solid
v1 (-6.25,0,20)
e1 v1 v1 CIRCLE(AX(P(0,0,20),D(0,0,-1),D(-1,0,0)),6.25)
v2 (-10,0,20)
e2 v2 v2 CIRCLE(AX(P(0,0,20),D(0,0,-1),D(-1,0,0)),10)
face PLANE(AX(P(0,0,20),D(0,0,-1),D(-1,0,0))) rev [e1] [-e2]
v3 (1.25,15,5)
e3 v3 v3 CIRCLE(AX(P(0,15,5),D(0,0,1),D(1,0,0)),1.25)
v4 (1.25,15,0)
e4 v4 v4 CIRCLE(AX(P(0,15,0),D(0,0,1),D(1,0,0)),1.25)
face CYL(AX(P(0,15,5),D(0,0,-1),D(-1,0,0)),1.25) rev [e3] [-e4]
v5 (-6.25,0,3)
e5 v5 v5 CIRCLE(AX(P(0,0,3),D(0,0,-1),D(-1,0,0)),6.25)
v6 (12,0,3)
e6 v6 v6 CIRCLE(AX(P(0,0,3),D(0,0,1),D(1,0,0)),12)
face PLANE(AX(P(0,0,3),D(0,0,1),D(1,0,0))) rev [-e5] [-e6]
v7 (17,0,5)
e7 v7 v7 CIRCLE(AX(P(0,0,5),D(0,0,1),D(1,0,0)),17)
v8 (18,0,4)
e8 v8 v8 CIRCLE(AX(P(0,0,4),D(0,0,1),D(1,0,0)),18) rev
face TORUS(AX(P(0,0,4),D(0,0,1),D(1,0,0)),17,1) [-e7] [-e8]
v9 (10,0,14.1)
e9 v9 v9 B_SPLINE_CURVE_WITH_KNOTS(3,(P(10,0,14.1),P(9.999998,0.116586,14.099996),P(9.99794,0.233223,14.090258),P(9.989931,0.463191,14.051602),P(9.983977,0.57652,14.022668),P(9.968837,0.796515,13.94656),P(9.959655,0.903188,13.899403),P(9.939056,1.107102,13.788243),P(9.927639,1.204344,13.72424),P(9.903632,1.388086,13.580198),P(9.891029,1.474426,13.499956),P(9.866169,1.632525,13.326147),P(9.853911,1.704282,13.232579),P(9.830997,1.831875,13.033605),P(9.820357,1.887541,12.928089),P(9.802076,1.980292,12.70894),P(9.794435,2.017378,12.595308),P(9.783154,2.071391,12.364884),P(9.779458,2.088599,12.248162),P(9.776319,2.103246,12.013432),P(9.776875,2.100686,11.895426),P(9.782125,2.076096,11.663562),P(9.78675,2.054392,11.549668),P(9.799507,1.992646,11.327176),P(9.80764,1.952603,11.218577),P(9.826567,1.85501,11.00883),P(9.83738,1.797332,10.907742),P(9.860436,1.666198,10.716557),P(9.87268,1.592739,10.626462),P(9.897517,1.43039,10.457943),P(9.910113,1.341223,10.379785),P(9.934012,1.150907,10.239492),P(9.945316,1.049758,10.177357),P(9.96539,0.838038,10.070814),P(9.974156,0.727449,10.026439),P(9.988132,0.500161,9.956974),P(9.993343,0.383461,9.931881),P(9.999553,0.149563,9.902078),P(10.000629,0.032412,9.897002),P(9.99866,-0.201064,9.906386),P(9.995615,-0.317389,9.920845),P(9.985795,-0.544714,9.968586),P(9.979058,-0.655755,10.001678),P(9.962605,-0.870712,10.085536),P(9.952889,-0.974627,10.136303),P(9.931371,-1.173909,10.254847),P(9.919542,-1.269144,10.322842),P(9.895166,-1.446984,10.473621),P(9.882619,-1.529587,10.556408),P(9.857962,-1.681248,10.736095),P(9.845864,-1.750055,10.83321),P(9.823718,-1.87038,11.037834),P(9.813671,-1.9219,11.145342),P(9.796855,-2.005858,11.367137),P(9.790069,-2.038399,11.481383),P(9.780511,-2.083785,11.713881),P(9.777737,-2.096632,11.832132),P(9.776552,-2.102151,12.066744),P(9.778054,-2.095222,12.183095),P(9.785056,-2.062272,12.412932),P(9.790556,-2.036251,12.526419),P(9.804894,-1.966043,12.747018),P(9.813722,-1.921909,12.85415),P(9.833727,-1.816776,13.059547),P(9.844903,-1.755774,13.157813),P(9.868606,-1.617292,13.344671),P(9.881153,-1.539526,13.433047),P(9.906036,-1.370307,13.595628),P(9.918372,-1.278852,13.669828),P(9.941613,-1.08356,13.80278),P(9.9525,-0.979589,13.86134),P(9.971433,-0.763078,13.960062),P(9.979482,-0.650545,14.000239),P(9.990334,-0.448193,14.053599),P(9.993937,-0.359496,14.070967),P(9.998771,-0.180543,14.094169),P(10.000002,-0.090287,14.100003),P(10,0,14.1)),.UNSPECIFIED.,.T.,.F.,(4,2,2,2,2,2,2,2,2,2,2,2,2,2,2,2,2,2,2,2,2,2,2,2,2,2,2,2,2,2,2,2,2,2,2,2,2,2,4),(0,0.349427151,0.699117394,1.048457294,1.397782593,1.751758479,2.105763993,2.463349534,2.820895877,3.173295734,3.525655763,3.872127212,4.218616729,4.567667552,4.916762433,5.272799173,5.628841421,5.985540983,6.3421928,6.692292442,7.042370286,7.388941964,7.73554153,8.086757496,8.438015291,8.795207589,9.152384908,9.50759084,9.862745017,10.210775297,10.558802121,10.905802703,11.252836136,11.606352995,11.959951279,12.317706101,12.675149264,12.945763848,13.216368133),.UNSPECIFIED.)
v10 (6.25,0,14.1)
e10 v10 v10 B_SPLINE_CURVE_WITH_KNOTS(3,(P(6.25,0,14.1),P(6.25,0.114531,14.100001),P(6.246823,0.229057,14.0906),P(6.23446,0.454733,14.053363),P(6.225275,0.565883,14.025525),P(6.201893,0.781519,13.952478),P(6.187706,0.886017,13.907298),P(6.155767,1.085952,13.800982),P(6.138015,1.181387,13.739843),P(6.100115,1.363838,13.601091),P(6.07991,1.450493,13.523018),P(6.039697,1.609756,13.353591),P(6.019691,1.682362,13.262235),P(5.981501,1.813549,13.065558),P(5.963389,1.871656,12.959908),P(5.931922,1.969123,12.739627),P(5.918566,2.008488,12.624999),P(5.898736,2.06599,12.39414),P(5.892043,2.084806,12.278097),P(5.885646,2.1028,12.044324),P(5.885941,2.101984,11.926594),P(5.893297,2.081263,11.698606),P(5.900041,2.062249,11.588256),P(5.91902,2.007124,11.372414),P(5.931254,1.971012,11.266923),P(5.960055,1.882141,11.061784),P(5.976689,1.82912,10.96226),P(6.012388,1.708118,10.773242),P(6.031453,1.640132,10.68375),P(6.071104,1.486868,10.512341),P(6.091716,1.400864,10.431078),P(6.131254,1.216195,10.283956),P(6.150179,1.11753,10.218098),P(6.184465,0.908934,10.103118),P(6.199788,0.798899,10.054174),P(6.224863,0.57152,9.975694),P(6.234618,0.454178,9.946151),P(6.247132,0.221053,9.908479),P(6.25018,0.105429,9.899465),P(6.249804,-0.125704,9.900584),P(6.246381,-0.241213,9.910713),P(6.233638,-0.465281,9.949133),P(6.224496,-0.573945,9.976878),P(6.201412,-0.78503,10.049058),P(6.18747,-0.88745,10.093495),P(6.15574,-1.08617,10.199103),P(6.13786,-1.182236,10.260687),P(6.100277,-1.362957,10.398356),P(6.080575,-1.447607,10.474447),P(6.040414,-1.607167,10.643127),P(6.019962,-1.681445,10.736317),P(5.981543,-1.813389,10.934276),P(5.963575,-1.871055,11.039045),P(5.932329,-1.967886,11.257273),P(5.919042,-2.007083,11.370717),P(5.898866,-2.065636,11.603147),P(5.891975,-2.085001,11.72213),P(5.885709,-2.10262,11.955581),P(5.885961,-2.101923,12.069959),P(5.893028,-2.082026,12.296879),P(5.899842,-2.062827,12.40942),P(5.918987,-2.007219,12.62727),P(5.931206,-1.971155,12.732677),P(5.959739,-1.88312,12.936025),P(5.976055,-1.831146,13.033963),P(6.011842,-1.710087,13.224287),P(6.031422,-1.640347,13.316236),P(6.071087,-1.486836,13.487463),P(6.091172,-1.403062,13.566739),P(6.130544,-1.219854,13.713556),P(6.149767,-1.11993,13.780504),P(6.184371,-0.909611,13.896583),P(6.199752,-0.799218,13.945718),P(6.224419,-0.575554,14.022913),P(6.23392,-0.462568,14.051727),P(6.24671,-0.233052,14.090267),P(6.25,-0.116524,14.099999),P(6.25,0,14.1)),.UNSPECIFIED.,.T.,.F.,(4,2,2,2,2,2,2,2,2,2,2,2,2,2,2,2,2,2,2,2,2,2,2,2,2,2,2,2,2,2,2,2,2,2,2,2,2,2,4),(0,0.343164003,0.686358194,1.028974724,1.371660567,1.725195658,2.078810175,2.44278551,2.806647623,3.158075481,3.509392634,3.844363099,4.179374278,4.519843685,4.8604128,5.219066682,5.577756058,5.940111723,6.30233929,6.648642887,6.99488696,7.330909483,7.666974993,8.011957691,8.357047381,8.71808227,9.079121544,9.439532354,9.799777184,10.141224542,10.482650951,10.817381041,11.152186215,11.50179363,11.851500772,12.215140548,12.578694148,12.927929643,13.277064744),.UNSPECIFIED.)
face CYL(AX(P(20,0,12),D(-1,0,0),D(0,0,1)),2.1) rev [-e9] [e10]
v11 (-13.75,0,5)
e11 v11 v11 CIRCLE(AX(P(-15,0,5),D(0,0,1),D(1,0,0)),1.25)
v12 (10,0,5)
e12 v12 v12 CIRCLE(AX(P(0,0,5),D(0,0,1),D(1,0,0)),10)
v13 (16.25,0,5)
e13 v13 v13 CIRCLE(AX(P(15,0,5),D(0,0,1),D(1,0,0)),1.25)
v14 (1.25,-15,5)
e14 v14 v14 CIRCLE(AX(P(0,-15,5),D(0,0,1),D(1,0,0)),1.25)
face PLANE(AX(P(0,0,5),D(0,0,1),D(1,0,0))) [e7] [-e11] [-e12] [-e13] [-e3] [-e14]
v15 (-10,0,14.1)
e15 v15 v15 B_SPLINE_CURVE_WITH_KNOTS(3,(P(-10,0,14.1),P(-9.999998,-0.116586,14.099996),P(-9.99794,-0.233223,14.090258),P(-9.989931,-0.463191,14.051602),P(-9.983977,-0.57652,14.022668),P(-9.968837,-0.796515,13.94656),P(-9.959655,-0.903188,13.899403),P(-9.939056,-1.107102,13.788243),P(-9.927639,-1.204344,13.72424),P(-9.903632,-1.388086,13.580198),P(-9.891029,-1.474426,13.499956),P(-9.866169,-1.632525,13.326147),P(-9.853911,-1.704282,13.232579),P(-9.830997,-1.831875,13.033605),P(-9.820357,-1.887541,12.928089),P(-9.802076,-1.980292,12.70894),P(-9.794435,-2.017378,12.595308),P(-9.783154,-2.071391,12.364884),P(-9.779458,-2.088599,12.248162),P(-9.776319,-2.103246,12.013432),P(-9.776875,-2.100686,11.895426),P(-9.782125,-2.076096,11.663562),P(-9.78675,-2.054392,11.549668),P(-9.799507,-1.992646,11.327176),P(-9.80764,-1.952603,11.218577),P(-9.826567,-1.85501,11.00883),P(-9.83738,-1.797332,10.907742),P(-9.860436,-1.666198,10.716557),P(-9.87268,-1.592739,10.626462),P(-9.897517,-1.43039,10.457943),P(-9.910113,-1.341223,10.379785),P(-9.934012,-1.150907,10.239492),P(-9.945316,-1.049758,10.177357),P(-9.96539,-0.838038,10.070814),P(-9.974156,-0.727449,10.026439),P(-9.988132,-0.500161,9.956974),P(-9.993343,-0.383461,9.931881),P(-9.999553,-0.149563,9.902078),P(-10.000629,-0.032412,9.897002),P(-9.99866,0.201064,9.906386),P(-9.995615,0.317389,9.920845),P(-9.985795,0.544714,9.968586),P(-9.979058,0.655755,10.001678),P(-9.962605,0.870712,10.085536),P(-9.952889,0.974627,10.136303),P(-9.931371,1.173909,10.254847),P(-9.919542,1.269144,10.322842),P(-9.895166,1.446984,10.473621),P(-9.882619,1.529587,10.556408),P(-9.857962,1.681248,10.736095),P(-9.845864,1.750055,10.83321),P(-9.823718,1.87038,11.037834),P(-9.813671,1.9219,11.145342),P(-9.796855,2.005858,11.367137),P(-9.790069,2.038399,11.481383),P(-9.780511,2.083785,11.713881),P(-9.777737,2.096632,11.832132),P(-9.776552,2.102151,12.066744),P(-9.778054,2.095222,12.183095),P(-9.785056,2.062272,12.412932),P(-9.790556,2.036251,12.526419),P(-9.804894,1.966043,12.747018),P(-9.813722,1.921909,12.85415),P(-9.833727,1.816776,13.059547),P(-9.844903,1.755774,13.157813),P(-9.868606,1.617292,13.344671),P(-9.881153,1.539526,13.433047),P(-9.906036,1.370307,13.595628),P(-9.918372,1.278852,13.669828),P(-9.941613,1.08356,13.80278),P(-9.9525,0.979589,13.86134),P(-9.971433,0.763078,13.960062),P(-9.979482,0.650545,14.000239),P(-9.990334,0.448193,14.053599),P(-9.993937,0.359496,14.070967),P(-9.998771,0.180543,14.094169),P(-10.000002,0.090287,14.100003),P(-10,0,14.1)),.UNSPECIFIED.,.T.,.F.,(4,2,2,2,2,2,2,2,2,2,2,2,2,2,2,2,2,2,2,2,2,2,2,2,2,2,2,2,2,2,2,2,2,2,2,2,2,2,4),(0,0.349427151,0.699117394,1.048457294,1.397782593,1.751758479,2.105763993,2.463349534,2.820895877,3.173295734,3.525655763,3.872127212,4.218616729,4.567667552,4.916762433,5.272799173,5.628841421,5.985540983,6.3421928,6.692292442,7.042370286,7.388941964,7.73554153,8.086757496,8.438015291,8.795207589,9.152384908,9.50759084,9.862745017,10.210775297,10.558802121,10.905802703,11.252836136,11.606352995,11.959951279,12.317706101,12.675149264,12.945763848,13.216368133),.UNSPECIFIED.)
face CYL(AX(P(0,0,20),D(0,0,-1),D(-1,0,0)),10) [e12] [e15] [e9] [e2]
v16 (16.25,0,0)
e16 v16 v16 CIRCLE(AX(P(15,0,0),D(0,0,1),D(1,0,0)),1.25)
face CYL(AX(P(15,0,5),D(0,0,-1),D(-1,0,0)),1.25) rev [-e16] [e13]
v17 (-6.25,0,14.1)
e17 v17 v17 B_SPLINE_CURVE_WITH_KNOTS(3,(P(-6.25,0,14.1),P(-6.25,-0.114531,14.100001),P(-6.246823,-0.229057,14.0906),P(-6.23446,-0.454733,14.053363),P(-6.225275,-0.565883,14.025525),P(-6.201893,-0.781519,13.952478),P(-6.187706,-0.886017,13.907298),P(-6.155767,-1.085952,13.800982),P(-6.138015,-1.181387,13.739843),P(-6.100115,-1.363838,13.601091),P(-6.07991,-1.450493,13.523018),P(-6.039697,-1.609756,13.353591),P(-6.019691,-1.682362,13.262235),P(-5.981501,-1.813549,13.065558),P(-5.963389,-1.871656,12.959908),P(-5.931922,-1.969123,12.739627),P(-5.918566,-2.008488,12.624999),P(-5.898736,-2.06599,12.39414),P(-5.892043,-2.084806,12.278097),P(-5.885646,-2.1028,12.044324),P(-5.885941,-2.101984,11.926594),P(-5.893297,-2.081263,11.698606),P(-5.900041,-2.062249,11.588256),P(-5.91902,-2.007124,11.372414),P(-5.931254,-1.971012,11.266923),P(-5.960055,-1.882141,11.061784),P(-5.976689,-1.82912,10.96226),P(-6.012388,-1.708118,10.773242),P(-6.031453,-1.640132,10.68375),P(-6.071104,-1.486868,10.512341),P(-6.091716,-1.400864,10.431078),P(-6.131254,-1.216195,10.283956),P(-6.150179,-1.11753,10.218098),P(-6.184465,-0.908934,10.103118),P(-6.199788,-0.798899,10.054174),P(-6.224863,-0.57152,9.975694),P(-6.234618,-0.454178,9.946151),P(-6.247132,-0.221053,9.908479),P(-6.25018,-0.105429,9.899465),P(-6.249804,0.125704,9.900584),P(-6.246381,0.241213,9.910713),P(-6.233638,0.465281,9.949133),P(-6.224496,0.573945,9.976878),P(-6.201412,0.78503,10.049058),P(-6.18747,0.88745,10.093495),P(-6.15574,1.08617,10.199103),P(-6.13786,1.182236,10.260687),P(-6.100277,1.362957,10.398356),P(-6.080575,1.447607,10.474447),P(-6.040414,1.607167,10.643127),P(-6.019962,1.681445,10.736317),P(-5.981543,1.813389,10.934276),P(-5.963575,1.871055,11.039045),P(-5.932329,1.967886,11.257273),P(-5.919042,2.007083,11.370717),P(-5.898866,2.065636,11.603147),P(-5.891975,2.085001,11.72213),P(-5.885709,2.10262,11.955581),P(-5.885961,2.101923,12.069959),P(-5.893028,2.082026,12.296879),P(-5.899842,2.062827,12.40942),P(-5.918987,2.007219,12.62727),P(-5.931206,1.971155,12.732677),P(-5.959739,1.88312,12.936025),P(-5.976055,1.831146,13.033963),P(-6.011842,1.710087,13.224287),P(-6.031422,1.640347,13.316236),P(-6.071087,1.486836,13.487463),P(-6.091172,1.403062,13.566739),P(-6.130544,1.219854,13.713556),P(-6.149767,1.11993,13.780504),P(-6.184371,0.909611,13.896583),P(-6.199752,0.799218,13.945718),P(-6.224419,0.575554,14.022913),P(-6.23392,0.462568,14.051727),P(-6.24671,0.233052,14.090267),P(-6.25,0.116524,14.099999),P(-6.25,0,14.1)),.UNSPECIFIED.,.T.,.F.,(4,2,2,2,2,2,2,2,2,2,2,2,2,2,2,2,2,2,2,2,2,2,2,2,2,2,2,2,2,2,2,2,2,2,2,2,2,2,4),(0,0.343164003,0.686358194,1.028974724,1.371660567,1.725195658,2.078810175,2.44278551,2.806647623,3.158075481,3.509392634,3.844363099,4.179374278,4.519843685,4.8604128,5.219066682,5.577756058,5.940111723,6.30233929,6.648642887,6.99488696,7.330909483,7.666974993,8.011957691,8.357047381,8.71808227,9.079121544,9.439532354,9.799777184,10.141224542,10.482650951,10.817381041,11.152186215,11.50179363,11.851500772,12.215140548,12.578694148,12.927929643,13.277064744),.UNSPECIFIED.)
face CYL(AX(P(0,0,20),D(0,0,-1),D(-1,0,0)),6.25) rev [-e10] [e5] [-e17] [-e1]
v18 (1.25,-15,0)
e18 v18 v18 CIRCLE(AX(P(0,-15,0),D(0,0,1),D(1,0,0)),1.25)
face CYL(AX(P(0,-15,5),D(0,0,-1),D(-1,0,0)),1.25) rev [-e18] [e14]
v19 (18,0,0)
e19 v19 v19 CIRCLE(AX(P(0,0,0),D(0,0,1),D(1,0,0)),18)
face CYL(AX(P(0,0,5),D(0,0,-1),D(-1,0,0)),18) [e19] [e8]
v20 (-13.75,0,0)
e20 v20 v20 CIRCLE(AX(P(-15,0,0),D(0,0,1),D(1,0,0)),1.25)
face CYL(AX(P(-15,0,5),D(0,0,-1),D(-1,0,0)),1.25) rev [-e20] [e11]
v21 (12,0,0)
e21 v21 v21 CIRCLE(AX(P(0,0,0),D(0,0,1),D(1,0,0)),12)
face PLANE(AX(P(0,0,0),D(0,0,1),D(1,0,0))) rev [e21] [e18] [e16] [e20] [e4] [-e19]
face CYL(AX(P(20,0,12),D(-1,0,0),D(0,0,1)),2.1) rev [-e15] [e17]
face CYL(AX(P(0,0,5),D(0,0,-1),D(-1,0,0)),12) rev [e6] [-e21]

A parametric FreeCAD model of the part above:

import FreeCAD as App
import Part
import Sketcher

V = App.Vector


def edges_at(feature, points):
    """Names of the edges that pass closest to the given points."""
    edges = feature.Shape.Edges
    near = lambda p: min(range(len(edges)), key=lambda i: edges[i].distToShape(Part.Vertex(*p))[0])
    return sorted({f"Edge{near(p) + 1}" for p in points})

doc = App.newDocument("Part")
body = doc.addObject("PartDesign::Body", "Body")

# Sketch on XY plane
sketch1 = doc.addObject("Sketcher::SketchObject", "Sketch")
body.addObject(sketch1)
sketch1.AttachmentSupport = (doc.XY_Plane, [""])
sketch1.MapMode = "FlatFace"
sketch1.addGeometry([
    Part.Circle(V(0, 0, 0), V(0, 0, 1), 18),  # 0
    Part.Circle(V(0, -15, 0), V(0, 0, 1), 1.2),  # 1
    Part.Circle(V(-15, 0, 0), V(0, 0, 1), 1.2),  # 2
    Part.Circle(V(0, 0, 0), V(0, 0, 1), 12),  # 3
    Part.Circle(V(15, 0, 0), V(0, 0, 1), 1.2),  # 4
    Part.Circle(V(0, 15, 0), V(0, 0, 1), 1.2),  # 5
], False)
sketch1.addConstraint([
    Sketcher.Constraint("Coincident", 0, 3, -1, 1),
    Sketcher.Constraint("Coincident", 3, 3, -1, 1),
    Sketcher.Constraint("Equal", 1, 2),
    Sketcher.Constraint("Equal", 2, 4),
    Sketcher.Constraint("Equal", 4, 5),
    Sketcher.Constraint("Symmetric", 2, 3, 4, 3, -1, 1),
    Sketcher.Constraint("Symmetric", 1, 3, 5, 3, -1, 1),
    Sketcher.Constraint("PointOnObject", 1, 3, -2),
    Sketcher.Constraint("PointOnObject", 2, 3, -1),
    Sketcher.Constraint("Diameter", 0, 36.0),
    Sketcher.Constraint("Diameter", 3, 24.0),
    Sketcher.Constraint("Diameter", 1, 2.5),
    Sketcher.Constraint("DistanceY", 1, 3, -1, 1, 15.0),
    Sketcher.Constraint("DistanceX", 2, 3, -1, 1, 15.0),
])
pad1 = doc.addObject("PartDesign::Pad", "Pad")
body.addObject(pad1)
pad1.Profile = sketch1
pad1.Length = 5

# Sketch on XY plane
sketch2 = doc.addObject("Sketcher::SketchObject", "Sketch001")
body.addObject(sketch2)
sketch2.AttachmentSupport = (doc.XY_Plane, [""])
sketch2.MapMode = "FlatFace"
sketch2.AttachmentOffset = App.Placement(V(0, 0, 3), App.Rotation())
sketch2.addGeometry([
    Part.Circle(V(0, 0, 0), V(0, 0, 1), 12),
    Part.Circle(V(0, 0, 0), V(0, 0, 1), 10),
], False)
sketch2.addConstraint([
    Sketcher.Constraint("Coincident", 0, 3, -1, 1),
    Sketcher.Constraint("Coincident", 1, 3, -1, 1),
    Sketcher.Constraint("Diameter", 0, 24.0),
    Sketcher.Constraint("Diameter", 1, 20.0),
])
pad2 = doc.addObject("PartDesign::Pad", "Pad001")
body.addObject(pad2)
pad2.Profile = sketch2
pad2.Length = 2
doc.recompute()

fillet = doc.addObject("PartDesign::Fillet", "Fillet")
body.addObject(fillet)
fillet.Base = (pad2, edges_at(pad2, [(-18, 0, 5)]))
fillet.Radius = 1

# Sketch on XY plane
sketch3 = doc.addObject("Sketcher::SketchObject", "Sketch002")
body.addObject(sketch3)
sketch3.AttachmentSupport = (doc.XY_Plane, [""])
sketch3.MapMode = "FlatFace"
sketch3.AttachmentOffset = App.Placement(V(0, 0, 3), App.Rotation())
sketch3.addGeometry([
    Part.Circle(V(0, 0, 0), V(0, 0, 1), 10),
    Part.Circle(V(0, 0, 0), V(0, 0, 1), 6),
], False)
sketch3.addConstraint([
    Sketcher.Constraint("Coincident", 0, 3, -1, 1),
    Sketcher.Constraint("Coincident", 1, 3, -1, 1),
    Sketcher.Constraint("Diameter", 0, 20.0),
    Sketcher.Constraint("Diameter", 1, 12.5),
])
pad3 = doc.addObject("PartDesign::Pad", "Pad002")
body.addObject(pad3)
pad3.Profile = sketch3
pad3.Length = 17

# Sketch on YZ plane
sketch4 = doc.addObject("Sketcher::SketchObject", "Sketch003")
body.addObject(sketch4)
sketch4.AttachmentSupport = (doc.YZ_Plane, [""])
sketch4.MapMode = "FlatFace"
sketch4.addGeometry(Part.Circle(V(0, 12, 0), V(0, 0, 1), 2.1), False)
sketch4.addConstraint([
    Sketcher.Constraint("PointOnObject", 0, 3, -2),
    Sketcher.Constraint("Diameter", 0, 4.2),
    Sketcher.Constraint("DistanceY", -1, 1, 0, 3, 12.0),
])
pocket1 = doc.addObject("PartDesign::Pocket", "Pocket")
body.addObject(pocket1)
pocket1.Profile = sketch4
pocket1.Type = "ThroughAll"
pocket1.Midplane = True

doc.recompute()
